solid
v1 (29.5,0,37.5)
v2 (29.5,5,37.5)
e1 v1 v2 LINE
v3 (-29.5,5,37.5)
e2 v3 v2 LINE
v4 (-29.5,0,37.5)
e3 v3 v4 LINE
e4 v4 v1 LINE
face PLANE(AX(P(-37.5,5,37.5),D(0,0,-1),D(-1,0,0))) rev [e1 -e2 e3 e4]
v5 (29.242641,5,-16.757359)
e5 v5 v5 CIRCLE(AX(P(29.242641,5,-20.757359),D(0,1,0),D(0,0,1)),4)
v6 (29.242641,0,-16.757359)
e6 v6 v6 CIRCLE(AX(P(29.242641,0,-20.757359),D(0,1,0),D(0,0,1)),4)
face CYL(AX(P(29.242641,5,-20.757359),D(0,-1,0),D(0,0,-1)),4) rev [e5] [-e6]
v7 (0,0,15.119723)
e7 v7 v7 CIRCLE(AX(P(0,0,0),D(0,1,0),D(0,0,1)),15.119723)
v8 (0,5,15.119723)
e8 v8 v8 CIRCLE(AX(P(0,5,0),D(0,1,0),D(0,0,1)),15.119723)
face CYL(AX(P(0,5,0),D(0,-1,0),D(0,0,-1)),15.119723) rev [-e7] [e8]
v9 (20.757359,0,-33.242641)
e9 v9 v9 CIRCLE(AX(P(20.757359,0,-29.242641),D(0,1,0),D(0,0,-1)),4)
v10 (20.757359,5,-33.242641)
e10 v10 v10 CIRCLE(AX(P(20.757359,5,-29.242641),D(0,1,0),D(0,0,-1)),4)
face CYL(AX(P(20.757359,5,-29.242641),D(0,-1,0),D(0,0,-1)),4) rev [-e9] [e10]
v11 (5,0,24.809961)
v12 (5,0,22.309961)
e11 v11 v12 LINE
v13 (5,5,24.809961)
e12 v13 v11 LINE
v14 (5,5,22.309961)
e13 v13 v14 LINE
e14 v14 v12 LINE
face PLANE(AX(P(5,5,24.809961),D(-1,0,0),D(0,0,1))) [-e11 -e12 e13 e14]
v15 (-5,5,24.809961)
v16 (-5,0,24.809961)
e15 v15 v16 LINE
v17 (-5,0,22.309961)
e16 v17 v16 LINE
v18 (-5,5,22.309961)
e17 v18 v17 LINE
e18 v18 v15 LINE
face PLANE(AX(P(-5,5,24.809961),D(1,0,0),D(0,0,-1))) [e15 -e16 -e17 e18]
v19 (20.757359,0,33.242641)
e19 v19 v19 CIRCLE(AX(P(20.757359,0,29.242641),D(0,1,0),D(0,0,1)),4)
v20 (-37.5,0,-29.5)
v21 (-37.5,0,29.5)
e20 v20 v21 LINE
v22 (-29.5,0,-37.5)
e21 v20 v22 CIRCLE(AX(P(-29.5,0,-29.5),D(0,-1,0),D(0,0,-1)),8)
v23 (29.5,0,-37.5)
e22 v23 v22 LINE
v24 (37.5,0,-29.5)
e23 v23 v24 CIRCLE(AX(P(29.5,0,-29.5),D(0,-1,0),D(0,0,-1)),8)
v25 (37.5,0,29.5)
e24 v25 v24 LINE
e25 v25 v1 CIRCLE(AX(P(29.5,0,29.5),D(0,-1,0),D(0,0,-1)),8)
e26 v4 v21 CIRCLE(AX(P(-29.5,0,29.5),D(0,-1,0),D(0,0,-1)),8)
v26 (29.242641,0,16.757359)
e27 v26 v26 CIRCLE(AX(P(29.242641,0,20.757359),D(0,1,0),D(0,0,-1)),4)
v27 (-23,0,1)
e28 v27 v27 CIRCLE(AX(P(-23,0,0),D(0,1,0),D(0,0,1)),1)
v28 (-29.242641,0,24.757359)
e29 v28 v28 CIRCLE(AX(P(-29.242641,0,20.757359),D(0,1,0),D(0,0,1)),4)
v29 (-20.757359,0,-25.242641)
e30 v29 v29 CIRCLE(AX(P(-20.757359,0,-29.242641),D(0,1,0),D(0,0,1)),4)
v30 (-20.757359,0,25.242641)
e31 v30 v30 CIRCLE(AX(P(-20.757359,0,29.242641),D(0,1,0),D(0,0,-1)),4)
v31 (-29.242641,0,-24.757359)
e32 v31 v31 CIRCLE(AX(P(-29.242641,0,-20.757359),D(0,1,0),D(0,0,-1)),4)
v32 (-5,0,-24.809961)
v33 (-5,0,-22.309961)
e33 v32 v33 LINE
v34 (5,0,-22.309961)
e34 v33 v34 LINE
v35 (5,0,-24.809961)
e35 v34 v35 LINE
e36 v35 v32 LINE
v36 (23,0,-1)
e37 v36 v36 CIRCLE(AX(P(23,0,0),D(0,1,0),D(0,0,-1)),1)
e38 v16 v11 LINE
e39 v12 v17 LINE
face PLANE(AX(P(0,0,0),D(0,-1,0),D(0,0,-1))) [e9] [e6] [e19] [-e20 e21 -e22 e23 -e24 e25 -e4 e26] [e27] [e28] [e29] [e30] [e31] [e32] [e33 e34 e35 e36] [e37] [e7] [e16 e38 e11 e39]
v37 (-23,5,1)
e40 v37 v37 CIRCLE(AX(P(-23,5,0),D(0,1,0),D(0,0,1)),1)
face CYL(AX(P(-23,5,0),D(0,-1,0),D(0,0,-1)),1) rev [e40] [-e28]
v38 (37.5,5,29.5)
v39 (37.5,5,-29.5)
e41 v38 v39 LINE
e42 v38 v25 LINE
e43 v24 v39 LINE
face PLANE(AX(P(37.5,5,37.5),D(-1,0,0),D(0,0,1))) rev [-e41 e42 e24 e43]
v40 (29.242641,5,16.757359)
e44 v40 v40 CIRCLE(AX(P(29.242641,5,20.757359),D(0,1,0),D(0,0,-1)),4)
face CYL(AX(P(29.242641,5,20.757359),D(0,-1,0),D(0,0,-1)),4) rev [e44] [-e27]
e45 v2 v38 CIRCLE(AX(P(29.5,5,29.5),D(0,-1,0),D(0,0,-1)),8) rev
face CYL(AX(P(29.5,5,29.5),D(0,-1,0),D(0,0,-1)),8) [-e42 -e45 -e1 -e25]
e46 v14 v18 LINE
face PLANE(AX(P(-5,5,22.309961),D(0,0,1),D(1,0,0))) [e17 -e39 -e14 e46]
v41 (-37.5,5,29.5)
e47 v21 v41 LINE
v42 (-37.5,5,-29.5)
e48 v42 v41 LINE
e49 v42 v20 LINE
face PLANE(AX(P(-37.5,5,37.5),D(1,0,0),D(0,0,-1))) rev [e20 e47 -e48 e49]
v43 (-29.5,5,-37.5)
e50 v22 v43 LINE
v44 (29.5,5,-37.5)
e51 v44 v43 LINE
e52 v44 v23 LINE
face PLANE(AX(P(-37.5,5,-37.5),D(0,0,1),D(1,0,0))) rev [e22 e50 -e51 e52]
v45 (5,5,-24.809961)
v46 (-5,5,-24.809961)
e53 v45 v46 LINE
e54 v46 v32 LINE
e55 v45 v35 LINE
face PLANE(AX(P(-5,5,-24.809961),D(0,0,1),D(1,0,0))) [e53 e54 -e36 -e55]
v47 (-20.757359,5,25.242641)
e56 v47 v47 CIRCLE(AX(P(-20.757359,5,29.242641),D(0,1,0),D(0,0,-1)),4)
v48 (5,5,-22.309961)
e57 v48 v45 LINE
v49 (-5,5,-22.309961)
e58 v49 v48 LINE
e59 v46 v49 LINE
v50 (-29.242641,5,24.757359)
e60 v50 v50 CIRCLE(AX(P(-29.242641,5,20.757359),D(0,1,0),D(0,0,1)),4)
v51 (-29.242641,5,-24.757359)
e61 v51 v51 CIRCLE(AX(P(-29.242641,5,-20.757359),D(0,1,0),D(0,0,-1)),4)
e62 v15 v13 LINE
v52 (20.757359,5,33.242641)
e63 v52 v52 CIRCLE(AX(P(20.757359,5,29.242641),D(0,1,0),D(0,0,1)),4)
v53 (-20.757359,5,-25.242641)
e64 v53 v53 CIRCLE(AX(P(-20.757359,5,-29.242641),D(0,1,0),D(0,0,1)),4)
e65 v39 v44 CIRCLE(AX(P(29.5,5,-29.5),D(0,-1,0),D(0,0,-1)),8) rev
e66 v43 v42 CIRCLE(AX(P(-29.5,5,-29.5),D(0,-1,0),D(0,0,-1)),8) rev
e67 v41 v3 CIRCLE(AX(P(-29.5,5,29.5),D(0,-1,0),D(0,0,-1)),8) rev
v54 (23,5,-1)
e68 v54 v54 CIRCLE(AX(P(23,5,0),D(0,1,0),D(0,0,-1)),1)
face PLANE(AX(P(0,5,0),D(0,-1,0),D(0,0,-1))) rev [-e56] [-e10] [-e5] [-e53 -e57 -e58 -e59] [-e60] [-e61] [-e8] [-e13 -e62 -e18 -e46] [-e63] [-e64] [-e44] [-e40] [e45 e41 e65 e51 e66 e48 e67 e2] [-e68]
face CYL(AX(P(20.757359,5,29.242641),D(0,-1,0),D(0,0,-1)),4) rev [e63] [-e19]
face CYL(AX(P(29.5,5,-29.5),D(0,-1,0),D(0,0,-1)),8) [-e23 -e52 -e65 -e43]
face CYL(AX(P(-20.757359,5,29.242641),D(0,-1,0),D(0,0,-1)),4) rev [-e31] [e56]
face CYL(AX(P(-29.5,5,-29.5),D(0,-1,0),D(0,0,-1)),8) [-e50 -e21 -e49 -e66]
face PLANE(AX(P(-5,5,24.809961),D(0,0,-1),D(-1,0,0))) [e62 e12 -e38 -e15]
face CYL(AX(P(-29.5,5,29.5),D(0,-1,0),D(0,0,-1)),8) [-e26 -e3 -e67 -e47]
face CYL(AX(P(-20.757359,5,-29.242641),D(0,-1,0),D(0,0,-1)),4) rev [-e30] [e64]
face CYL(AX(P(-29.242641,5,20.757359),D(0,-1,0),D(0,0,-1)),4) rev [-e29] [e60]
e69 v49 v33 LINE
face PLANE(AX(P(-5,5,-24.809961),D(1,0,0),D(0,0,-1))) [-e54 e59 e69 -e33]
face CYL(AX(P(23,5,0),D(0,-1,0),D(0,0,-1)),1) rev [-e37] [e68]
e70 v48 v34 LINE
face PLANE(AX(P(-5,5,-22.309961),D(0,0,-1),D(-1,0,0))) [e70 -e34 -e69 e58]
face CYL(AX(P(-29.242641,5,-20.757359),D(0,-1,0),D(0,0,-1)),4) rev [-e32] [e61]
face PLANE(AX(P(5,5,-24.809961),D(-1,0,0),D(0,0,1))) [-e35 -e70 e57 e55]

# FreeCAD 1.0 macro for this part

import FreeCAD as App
import Part
import Sketcher
Q = App.Units.Quantity


def edges_at(feature, points):
    """Names of the edges that pass closest to the given points."""
    edges = feature.Shape.Edges
    near = lambda p: min(range(len(edges)), key=lambda i: edges[i].distToShape(Part.Vertex(*p))[0])
    return sorted({f"Edge{near(p) + 1}" for p in points})


def add_polygon(sketch, points):
    """Adds a closed chain of lines whose ends are joined by coincident constraints."""
    first, n = sketch.GeometryCount, len(points)
    for a, b in zip(points, points[1:] + points[:1]):
        sketch.addGeometry(Part.LineSegment(App.Vector(*a, 0), App.Vector(*b, 0)), False)
    for i in range(n):
        sketch.addConstraint(Sketcher.Constraint("Coincident", first + i, 2, first + (i + 1) % n, 1))

doc = App.newDocument("Part")
body = doc.addObject("PartDesign::Body", "Body")

# Sketch on XZ plane
sketch1 = body.newObject("Sketcher::SketchObject", "Sketch")
sketch1.AttachmentSupport = (doc.getObject("XZ_Plane"), [""])
sketch1.MapMode = "FlatFace"
add_polygon(sketch1, [(-37.5, -37.5), (-37.5, 37.5), (37.5, 37.5), (37.5, -37.5)])  # lines 0-3
sketch1.addGeometry(Part.Circle(App.Vector(-20.8, 29.2, 0), App.Vector(0, 0, 1), 4), False)  # 4
sketch1.addGeometry(Part.Circle(App.Vector(-29.2, 20.8, 0), App.Vector(0, 0, 1), 4), False)  # 5
add_polygon(sketch1, [(5, 24.8), (-5, 24.8), (-5, 22.3), (5, 22.3)])  # lines 6-9
sketch1.addGeometry(Part.Circle(App.Vector(20.8, 29.2, 0), App.Vector(0, 0, 1), 4), False)  # 10
sketch1.addGeometry(Part.Circle(App.Vector(29.2, 20.8, 0), App.Vector(0, 0, 1), 4), False)  # 11
sketch1.addGeometry(Part.Circle(App.Vector(-23, 0, 0), App.Vector(0, 0, 1), 1), False)  # 12
sketch1.addGeometry(Part.Circle(App.Vector(-29.2, -20.8, 0), App.Vector(0, 0, 1), 4), False)  # 13
sketch1.addGeometry(Part.Circle(App.Vector(-20.8, -29.2, 0), App.Vector(0, 0, 1), 4), False)  # 14
sketch1.addGeometry(Part.Circle(App.Vector(0, 0, 0), App.Vector(0, 0, 1), 15.1), False)  # 15
sketch1.addGeometry(Part.Circle(App.Vector(23, 0, 0), App.Vector(0, 0, 1), 1), False)  # 16
add_polygon(sketch1, [(5, -22.3), (-5, -22.3), (-5, -24.8), (5, -24.8)])  # lines 17-20
sketch1.addGeometry(Part.Circle(App.Vector(29.2, -20.8, 0), App.Vector(0, 0, 1), 4), False)  # 21
sketch1.addGeometry(Part.Circle(App.Vector(20.8, -29.2, 0), App.Vector(0, 0, 1), 4), False)  # 22
sketch1.addConstraint([
    Sketcher.Constraint("Vertical", 0),
    Sketcher.Constraint("Horizontal", 1),
    Sketcher.Constraint("Vertical", 2),
    Sketcher.Constraint("Horizontal", 3),
    Sketcher.Constraint("Horizontal", 6),
    Sketcher.Constraint("Vertical", 7),
    Sketcher.Constraint("Horizontal", 8),
    Sketcher.Constraint("Vertical", 9),
    Sketcher.Constraint("Horizontal", 17),
    Sketcher.Constraint("Vertical", 18),
    Sketcher.Constraint("Horizontal", 19),
    Sketcher.Constraint("Vertical", 20),
    Sketcher.Constraint("Coincident", 15, 3, -1, 1),
    Sketcher.Constraint("Equal", 4, 5),
    Sketcher.Constraint("Equal", 5, 10),
    Sketcher.Constraint("Equal", 10, 11),
    Sketcher.Constraint("Equal", 11, 13),
    Sketcher.Constraint("Equal", 13, 14),
    Sketcher.Constraint("Equal", 12, 16),
    Sketcher.Constraint("Equal", 14, 21),
    Sketcher.Constraint("Equal", 21, 22),
    Sketcher.Constraint("Symmetric", 11, 3, 13, 3, -1, 1),
    Sketcher.Constraint("Symmetric", 10, 3, 14, 3, -1, 1),
    Sketcher.Constraint("Symmetric", 12, 3, 16, 3, -1, 1),
    Sketcher.Constraint("Symmetric", 5, 3, 21, 3, -1, 1),
    Sketcher.Constraint("Symmetric", 4, 3, 22, 3, -1, 1),
    Sketcher.Constraint("Symmetric", 0, 2, 2, 2, -1, 1),
    Sketcher.Constraint("Symmetric", 8, 2, 17, 2, -1, 1),
    Sketcher.Constraint("Symmetric", 6, 2, 19, 2, -1, 1),
    Sketcher.Constraint("Symmetric", 4, 3, 10, 3, -2),
    Sketcher.Constraint("Symmetric", 5, 3, 11, 3, -2),
    Sketcher.Constraint("PointOnObject", 12, 3, -1),
    Sketcher.Constraint("Vertical", 7, 2, 17, 2),
    Sketcher.Constraint("Equal", 3, 0),
    Sketcher.Constraint("Diameter", 4, Q("8 mm")),
    Sketcher.Constraint("Diameter", 12, Q("2 mm")),
    Sketcher.Constraint("DistanceX", 1, 1, 1, 2, Q("75 mm")),
    Sketcher.Constraint("DistanceX", 6, 2, 6, 1, Q("10 mm")),
    Sketcher.Constraint("DistanceY", 7, 2, 7, 1, Q("2.5 mm")),
    Sketcher.Constraint("DistanceX", 12, 3, -1, 1, Q("23 mm")),
    Sketcher.Constraint("DistanceX", 5, 3, 10, 3, Q("50 mm")),
    Sketcher.Constraint("DistanceY", 13, 3, 4, 3, Q("50 mm")),
    Sketcher.Constraint("Diameter", 15, Q("30.239445 mm")),
    Sketcher.Constraint("DistanceY", 5, 3, 6, 2, Q("4.052602 mm")),
    Sketcher.Constraint("DistanceX", 4, 3, -1, 1, Q("20.757359 mm")),
    Sketcher.Constraint("DistanceY", -1, 1, 4, 3, Q("29.242641 mm")),
])
pad1 = body.newObject("PartDesign::Pad", "Pad")
pad1.Profile = sketch1
pad1.Length = 5
pad1.Reversed = True
doc.recompute()

fillet = body.newObject("PartDesign::Fillet", "Fillet")
fillet.Base = (pad1, edges_at(pad1, [
    (37.5, 2.5, 37.5),
    (-37.5, 2.5, 37.5),
    (-37.5, 2.5, -37.5),
    (37.5, 2.5, -37.5),
]))
fillet.Radius = 8

doc.recompute()
